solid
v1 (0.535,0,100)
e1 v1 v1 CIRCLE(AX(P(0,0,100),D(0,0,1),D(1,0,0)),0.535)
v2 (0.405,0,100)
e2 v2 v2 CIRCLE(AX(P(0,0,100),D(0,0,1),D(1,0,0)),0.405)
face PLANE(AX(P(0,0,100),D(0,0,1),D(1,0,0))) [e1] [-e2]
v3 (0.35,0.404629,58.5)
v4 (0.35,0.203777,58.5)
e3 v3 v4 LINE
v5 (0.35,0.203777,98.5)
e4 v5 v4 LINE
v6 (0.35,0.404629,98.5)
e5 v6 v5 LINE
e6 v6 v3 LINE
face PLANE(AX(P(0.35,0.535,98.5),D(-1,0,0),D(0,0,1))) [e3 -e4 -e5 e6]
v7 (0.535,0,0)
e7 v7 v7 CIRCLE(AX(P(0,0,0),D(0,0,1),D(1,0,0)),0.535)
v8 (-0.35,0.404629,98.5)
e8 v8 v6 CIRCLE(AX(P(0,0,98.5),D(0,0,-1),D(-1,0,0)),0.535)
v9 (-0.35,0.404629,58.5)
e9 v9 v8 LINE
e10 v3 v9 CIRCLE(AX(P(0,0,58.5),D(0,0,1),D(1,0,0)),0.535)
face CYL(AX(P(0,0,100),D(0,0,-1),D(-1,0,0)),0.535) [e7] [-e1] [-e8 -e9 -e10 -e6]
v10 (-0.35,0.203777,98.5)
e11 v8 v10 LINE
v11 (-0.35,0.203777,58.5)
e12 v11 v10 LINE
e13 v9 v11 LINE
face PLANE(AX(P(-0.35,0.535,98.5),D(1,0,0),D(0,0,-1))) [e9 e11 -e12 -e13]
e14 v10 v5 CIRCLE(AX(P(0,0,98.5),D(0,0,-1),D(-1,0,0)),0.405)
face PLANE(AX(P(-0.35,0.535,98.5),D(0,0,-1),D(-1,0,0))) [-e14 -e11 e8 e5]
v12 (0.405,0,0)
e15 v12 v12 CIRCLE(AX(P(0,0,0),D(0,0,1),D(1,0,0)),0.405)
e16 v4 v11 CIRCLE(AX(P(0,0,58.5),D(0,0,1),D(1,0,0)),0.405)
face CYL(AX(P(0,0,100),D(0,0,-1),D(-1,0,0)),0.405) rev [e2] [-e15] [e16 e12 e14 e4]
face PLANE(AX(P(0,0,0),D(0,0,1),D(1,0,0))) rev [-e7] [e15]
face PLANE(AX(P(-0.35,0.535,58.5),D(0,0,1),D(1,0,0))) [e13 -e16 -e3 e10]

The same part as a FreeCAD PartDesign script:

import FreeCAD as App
import Part
import Sketcher
from FreeCAD import Vector
Q = App.Units.Quantity


def add_polygon(sketch, points):
    """Adds a closed chain of lines whose ends are joined by coincident constraints."""
    first, n = sketch.GeometryCount, len(points)
    for a, b in zip(points, points[1:] + points[:1]):
        sketch.addGeometry(Part.LineSegment(App.Vector(*a, 0), App.Vector(*b, 0)), False)
    for i in range(n):
        sketch.addConstraint(Sketcher.Constraint("Coincident", first + i, 2, first + (i + 1) % n, 1))

doc = App.newDocument("Part")
params = doc.addObject("Spreadsheet::Sheet", "Params")
for row, (alias, value) in enumerate([
    ("sketch1_diameter", "1.07 mm"),
    ("sketch1_diameter2", "0.81 mm"),
    ("pad1_length", "100 mm"),
    ("sketch2_height", "40 mm"),
    ("sketch2_width", "0.7 mm"),
], start=1):
    params.set(f"A{row}", alias)
    params.set(f"B{row}", "=" + value)
    params.setAlias(f"B{row}", alias)

body = doc.addObject("PartDesign::Body", "Body")

sketch1 = body.newObject("Sketcher::SketchObject", "Sketch")
sketch1.AttachmentSupport = (doc.getObject("XY_Plane"), [""])
sketch1.MapMode = "FlatFace"
sketch1.addGeometry(Part.Circle(Vector(0, 0, 0), Vector(0, 0, 1), 0.54), False)
sketch1.addGeometry(Part.Circle(Vector(0, 0, 0), Vector(0, 0, 1), 0.41), False)
sketch1.addConstraint(Sketcher.Constraint("Coincident", 0, 3, -1, 1))
sketch1.addConstraint(Sketcher.Constraint("Coincident", 1, 3, -1, 1))
sketch1.addConstraint(Sketcher.Constraint("Diameter", 0, Q("1.07 mm")))
sketch1.addConstraint(Sketcher.Constraint("Diameter", 1, Q("0.81 mm")))
sketch1.setExpression("Constraints[2]", "Params.sketch1_diameter")
sketch1.setExpression("Constraints[3]", "Params.sketch1_diameter2")
pad1 = body.newObject("PartDesign::Pad", "Pad")
pad1.Profile = sketch1
pad1.setExpression("Length", "Params.pad1_length")

sketch2 = body.newObject("Sketcher::SketchObject", "Sketch001")
sketch2.AttachmentSupport = (doc.getObject("XZ_Plane"), [""])
sketch2.MapMode = "FlatFace"
add_polygon(sketch2, [(-0.3, 58.5), (-0.3, 98.5), (0.3, 98.5), (0.3, 58.5)])
sketch2.addConstraint(Sketcher.Constraint("Vertical", 0))
sketch2.addConstraint(Sketcher.Constraint("Horizontal", 1))
sketch2.addConstraint(Sketcher.Constraint("Vertical", 2))
sketch2.addConstraint(Sketcher.Constraint("Horizontal", 3))
sketch2.addConstraint(Sketcher.Constraint("DistanceY", 0, 1, 0, 2, Q("40 mm")))
sketch2.addConstraint(Sketcher.Constraint("DistanceX", 1, 1, 1, 2, Q("0.7 mm")))
sketch2.addConstraint(Sketcher.Constraint("DistanceY", -1, 1, 0, 2, Q("98.5 mm")))
sketch2.addConstraint(Sketcher.Constraint("DistanceX", 0, 2, -1, 1, Q("0.35 mm")))
sketch2.setExpression("Constraints[8]", "Params.sketch2_height")
sketch2.setExpression("Constraints[9]", "Params.sketch2_width")
pocket1 = body.newObject("PartDesign::Pocket", "Pocket")
pocket1.Profile = sketch2
pocket1.Type = "ThroughAll"

doc.recompute()
